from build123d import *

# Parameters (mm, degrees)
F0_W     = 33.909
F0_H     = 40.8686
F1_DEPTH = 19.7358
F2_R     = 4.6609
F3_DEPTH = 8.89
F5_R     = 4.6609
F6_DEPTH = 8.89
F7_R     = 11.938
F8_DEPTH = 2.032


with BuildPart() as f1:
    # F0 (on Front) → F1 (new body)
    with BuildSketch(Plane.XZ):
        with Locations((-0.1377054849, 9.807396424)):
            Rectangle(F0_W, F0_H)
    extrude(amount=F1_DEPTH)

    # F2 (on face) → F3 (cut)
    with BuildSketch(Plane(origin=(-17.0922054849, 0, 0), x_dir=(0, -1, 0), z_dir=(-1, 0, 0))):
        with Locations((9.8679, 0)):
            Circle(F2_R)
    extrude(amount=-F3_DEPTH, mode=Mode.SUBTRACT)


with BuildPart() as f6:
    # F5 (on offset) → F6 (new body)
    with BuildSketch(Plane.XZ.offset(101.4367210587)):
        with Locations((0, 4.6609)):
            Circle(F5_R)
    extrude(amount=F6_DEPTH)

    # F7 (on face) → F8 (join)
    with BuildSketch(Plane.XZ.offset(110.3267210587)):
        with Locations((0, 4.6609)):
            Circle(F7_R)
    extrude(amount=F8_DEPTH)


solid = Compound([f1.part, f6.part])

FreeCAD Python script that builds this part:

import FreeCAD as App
import Part
import Sketcher

V = App.Vector
Q = App.Units.Quantity


def add_polygon(sketch, points):
    """Adds a closed chain of lines whose ends are joined by coincident constraints."""
    first, n = sketch.GeometryCount, len(points)
    for a, b in zip(points, points[1:] + points[:1]):
        sketch.addGeometry(Part.LineSegment(App.Vector(*a, 0), App.Vector(*b, 0)), False)
    for i in range(n):
        sketch.addConstraint(Sketcher.Constraint("Coincident", first + i, 2, first + (i + 1) % n, 1))

doc = App.newDocument("Part")
body = doc.addObject("PartDesign::Body", "Body")

# Sketch on XZ plane
sketch1 = doc.addObject("Sketcher::SketchObject", "Sketch")
body.addObject(sketch1)
sketch1.AttachmentSupport = (doc.XZ_Plane, [""])
sketch1.MapMode = "FlatFace"
add_polygon(sketch1, [(-17.092205, 30.241696), (-17.092205, -10.626904), (16.816795, -10.626904), (16.816795, 30.241696)])  # lines 0-3
sketch1.addConstraint([
    Sketcher.Constraint("Vertical", 0),
    Sketcher.Constraint("Horizontal", 1),
    Sketcher.Constraint("Vertical", 2),
    Sketcher.Constraint("Horizontal", 3),
    Sketcher.Constraint("DistanceX", 1, 1, 1, 2, Q("1.335 in")),
    Sketcher.Constraint("DistanceY", 0, 2, 0, 1, Q("1.609 in")),
    Sketcher.Constraint("DistanceX", 0, 2, -1, 1, Q("17.092205 mm")),
    Sketcher.Constraint("DistanceY", 0, 2, -1, 1, Q("10.626904 mm")),
])
pad1 = doc.addObject("PartDesign::Pad", "Pad")
body.addObject(pad1)
pad1.Profile = sketch1
pad1.Length = Q("0.777 in")

# Sketch on YZ plane
sketch2 = doc.addObject("Sketcher::SketchObject", "Sketch001")
body.addObject(sketch2)
sketch2.AttachmentSupport = (doc.YZ_Plane, [""])
sketch2.MapMode = "FlatFace"
sketch2.AttachmentOffset = App.Placement(V(0, 0, -17.092205), App.Rotation())
sketch2.addGeometry(Part.Circle(V(-9.8679, 0, 0), V(0, 0, 1), 4.6609), False)
sketch2.addConstraint([
    Sketcher.Constraint("PointOnObject", 0, 3, -1),
    Sketcher.Constraint("Diameter", 0, Q("0.367 in")),
    Sketcher.Constraint("DistanceX", 0, 3, -1, 1, Q("0.3885 in")),
])
pocket1 = doc.addObject("PartDesign::Pocket", "Pocket")
body.addObject(pocket1)
pocket1.Profile = sketch2
pocket1.Length = Q("0.35 in")
pocket1.Reversed = True
body2 = doc.addObject("PartDesign::Body", "Body001")

# Sketch on XZ plane
sketch3 = doc.addObject("Sketcher::SketchObject", "Sketch002")
body2.addObject(sketch3)
sketch3.AttachmentSupport = (doc.getObject("XZ_Plane001"), [""])
sketch3.MapMode = "FlatFace"
sketch3.AttachmentOffset = App.Placement(V(0, 0, 101.436721), App.Rotation())
sketch3.addGeometry(Part.Circle(V(0, 4.6609, 0), V(0, 0, 1), 4.6609), False)
sketch3.addConstraint([
    Sketcher.Constraint("PointOnObject", 0, 3, -2),
    Sketcher.Constraint("Diameter", 0, Q("0.367 in")),
    Sketcher.Constraint("DistanceY", -1, 1, 0, 3, Q("0.1835 in")),
])
pad2 = doc.addObject("PartDesign::Pad", "Pad001")
body2.addObject(pad2)
pad2.Profile = sketch3
pad2.Length = Q("0.35 in")

# Sketch on XZ plane
sketch4 = doc.addObject("Sketcher::SketchObject", "Sketch003")
body2.addObject(sketch4)
sketch4.AttachmentSupport = (doc.getObject("XZ_Plane001"), [""])
sketch4.MapMode = "FlatFace"
sketch4.AttachmentOffset = App.Placement(V(0, 0, 110.326721), App.Rotation())
sketch4.addGeometry(Part.Circle(V(0, 4.6609, 0), V(0, 0, 1), 11.938), False)
sketch4.addConstraint([
    Sketcher.Constraint("PointOnObject", 0, 3, -2),
    Sketcher.Constraint("Diameter", 0, Q("0.94 in")),
    Sketcher.Constraint("DistanceY", -1, 1, 0, 3, Q("0.1835 in")),
])
pad3 = doc.addObject("PartDesign::Pad", "Pad002")
body2.addObject(pad3)
pad3.Profile = sketch4
pad3.Length = Q("0.08 in")

doc.recompute()
